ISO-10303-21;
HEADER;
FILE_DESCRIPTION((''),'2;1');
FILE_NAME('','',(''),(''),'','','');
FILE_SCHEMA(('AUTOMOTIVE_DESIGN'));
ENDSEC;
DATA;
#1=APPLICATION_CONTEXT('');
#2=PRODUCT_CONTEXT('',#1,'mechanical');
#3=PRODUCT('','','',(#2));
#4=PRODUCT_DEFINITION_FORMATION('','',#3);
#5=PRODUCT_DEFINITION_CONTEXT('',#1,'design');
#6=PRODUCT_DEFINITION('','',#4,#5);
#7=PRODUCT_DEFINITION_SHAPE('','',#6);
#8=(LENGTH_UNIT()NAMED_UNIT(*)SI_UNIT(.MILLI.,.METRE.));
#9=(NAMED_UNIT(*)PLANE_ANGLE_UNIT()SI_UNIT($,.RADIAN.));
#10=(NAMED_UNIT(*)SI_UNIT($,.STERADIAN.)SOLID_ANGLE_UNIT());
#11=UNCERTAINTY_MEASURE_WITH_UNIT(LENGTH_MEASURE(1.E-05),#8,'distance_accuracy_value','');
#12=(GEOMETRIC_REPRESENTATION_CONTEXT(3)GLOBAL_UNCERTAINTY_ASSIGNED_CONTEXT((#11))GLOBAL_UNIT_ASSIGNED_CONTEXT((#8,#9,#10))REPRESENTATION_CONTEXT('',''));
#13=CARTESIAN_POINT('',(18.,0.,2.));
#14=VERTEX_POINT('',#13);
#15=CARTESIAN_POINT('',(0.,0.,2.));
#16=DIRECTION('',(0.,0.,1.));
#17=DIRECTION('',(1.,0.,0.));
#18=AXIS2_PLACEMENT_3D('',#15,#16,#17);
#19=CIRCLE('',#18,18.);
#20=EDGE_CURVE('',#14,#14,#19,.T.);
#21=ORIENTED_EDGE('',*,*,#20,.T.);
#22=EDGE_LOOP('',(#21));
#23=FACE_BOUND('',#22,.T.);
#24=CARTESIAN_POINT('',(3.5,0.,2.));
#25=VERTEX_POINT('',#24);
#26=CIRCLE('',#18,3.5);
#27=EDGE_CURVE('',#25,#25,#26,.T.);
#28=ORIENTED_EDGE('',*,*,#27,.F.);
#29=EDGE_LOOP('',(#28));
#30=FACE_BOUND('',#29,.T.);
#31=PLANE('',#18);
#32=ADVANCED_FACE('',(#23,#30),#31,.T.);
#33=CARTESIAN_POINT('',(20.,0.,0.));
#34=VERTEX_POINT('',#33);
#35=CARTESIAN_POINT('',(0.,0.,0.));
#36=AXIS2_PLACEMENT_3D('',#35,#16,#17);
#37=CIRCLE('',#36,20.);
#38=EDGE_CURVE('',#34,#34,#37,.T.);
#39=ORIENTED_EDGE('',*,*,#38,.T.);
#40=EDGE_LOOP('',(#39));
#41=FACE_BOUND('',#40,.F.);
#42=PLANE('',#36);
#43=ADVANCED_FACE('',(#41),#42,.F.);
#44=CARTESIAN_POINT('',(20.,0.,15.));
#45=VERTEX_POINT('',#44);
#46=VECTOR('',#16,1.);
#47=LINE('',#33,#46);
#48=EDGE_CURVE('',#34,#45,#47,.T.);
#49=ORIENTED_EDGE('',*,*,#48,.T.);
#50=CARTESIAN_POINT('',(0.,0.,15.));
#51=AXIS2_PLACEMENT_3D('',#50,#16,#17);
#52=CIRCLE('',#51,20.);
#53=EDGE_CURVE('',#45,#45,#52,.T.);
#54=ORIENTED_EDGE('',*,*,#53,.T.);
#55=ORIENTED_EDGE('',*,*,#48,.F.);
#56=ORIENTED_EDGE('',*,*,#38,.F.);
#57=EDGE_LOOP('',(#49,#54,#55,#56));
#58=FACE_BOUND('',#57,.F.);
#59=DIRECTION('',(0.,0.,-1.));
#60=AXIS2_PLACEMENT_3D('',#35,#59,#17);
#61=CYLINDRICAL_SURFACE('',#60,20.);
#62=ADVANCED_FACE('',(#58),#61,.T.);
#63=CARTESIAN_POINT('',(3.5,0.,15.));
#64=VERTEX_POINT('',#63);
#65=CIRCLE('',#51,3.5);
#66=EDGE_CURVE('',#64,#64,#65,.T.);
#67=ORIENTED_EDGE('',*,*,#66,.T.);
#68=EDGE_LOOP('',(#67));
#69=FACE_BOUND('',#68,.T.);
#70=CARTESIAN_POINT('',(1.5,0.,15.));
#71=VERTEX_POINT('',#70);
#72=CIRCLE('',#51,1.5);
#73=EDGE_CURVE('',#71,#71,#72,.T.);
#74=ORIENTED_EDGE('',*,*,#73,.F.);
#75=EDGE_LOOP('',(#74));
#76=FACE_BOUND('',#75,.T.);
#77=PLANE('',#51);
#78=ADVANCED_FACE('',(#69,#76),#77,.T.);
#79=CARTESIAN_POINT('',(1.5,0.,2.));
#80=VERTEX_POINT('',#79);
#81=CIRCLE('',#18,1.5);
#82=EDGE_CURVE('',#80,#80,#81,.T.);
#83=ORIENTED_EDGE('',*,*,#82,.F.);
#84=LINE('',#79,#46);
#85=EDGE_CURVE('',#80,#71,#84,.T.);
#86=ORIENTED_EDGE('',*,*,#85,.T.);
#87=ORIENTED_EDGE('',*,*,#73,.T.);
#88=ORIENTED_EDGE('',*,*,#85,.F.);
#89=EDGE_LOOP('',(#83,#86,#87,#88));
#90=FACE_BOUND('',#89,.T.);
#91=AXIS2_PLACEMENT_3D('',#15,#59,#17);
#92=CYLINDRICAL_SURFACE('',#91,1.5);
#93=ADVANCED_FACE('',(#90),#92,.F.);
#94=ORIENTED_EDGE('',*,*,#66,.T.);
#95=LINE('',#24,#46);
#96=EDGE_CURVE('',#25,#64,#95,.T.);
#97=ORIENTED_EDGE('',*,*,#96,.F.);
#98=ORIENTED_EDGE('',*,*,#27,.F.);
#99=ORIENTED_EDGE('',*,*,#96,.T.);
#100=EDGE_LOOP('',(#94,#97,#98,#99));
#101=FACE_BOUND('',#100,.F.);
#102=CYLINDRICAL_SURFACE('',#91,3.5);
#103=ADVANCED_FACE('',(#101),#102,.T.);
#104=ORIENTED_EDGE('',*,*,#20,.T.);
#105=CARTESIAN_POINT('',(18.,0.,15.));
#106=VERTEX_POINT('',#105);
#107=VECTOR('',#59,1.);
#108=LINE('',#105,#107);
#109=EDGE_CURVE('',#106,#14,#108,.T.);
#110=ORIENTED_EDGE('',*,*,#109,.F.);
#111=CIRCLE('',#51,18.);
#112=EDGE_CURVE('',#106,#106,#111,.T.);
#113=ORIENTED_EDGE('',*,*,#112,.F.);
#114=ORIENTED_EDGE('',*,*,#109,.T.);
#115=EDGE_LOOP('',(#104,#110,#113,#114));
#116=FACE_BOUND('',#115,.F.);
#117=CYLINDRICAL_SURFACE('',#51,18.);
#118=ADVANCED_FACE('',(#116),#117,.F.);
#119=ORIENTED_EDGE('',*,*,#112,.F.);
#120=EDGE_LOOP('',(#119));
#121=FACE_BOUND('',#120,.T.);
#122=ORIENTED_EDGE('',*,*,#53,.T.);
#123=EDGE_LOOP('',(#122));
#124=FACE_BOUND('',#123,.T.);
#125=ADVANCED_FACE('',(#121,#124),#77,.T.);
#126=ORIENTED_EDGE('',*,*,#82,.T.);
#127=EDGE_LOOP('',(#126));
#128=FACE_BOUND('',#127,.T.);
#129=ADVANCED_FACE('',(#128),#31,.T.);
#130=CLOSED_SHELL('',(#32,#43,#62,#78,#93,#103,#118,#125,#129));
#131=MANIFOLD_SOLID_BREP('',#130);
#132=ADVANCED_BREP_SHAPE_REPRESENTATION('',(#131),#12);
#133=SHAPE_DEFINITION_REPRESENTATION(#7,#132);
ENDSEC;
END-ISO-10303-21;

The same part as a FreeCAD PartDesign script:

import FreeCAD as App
import Part
import Sketcher

doc = App.newDocument("Part")
params = doc.addObject("Spreadsheet::Sheet", "Params")
for row, (alias, value) in enumerate([
    ("sketch1_diameter", "40 mm"),
    ("pad1_length", "15 mm"),
    ("sketch2_diameter", "36 mm"),
    ("pocket1_length", "13 mm"),
    ("sketch3_diameter", "7 mm"),
    ("sketch3_diameter2", "3 mm"),
    ("pad2_length", "13 mm"),
], start=1):
    params.set(f"A{row}", alias)
    params.set(f"B{row}", "=" + value)
    params.setAlias(f"B{row}", alias)

body = doc.addObject("PartDesign::Body", "Body")

sketch1 = body.newObject("Sketcher::SketchObject", "Sketch")
sketch1.AttachmentSupport = (doc.getObject("XY_Plane"), [""])
sketch1.MapMode = "FlatFace"
sketch1.addGeometry(Part.Circle(App.Vector(0, 0, 0), App.Vector(0, 0, 1), 20), False)
sketch1.addConstraint([
    Sketcher.Constraint("Coincident", 0, 3, -1, 1),
    Sketcher.Constraint("Diameter", 0, 40.0),
])
sketch1.setExpression("Constraints[1]", "Params.sketch1_diameter")
pad1 = body.newObject("PartDesign::Pad", "Pad")
pad1.Profile = sketch1
pad1.setExpression("Length", "Params.pad1_length")

sketch2 = body.newObject("Sketcher::SketchObject", "Sketch001")
sketch2.AttachmentSupport = (doc.getObject("XY_Plane"), [""])
sketch2.MapMode = "FlatFace"
sketch2.AttachmentOffset = App.Placement(App.Vector(0, 0, 15), App.Rotation())
sketch2.addGeometry(Part.Circle(App.Vector(0, 0, 0), App.Vector(0, 0, 1), 18), False)
sketch2.addConstraint([
    Sketcher.Constraint("Coincident", 0, 3, -1, 1),
    Sketcher.Constraint("Diameter", 0, 36.0),
])
sketch2.setExpression("Constraints[1]", "Params.sketch2_diameter")
pocket1 = body.newObject("PartDesign::Pocket", "Pocket")
pocket1.Profile = sketch2
pocket1.setExpression("Length", "Params.pocket1_length")

sketch3 = body.newObject("Sketcher::SketchObject", "Sketch002")
sketch3.AttachmentSupport = (doc.getObject("XY_Plane"), [""])
sketch3.MapMode = "FlatFace"
sketch3.AttachmentOffset = App.Placement(App.Vector(0, 0, 2), App.Rotation())
sketch3.addGeometry([
    Part.Circle(App.Vector(0, 0, 0), App.Vector(0, 0, 1), 3.5),
    Part.Circle(App.Vector(0, 0, 0), App.Vector(0, 0, 1), 1.5),
], False)
sketch3.addConstraint([
    Sketcher.Constraint("Coincident", 0, 3, -1, 1),
    Sketcher.Constraint("Coincident", 1, 3, -1, 1),
    Sketcher.Constraint("Diameter", 0, 7.0),
    Sketcher.Constraint("Diameter", 1, 3.0),
])
sketch3.setExpression("Constraints[2]", "Params.sketch3_diameter")
sketch3.setExpression("Constraints[3]", "Params.sketch3_diameter2")
pad2 = body.newObject("PartDesign::Pad", "Pad001")
pad2.Profile = sketch3
pad2.setExpression("Length", "Params.pad2_length")

doc.recompute()
